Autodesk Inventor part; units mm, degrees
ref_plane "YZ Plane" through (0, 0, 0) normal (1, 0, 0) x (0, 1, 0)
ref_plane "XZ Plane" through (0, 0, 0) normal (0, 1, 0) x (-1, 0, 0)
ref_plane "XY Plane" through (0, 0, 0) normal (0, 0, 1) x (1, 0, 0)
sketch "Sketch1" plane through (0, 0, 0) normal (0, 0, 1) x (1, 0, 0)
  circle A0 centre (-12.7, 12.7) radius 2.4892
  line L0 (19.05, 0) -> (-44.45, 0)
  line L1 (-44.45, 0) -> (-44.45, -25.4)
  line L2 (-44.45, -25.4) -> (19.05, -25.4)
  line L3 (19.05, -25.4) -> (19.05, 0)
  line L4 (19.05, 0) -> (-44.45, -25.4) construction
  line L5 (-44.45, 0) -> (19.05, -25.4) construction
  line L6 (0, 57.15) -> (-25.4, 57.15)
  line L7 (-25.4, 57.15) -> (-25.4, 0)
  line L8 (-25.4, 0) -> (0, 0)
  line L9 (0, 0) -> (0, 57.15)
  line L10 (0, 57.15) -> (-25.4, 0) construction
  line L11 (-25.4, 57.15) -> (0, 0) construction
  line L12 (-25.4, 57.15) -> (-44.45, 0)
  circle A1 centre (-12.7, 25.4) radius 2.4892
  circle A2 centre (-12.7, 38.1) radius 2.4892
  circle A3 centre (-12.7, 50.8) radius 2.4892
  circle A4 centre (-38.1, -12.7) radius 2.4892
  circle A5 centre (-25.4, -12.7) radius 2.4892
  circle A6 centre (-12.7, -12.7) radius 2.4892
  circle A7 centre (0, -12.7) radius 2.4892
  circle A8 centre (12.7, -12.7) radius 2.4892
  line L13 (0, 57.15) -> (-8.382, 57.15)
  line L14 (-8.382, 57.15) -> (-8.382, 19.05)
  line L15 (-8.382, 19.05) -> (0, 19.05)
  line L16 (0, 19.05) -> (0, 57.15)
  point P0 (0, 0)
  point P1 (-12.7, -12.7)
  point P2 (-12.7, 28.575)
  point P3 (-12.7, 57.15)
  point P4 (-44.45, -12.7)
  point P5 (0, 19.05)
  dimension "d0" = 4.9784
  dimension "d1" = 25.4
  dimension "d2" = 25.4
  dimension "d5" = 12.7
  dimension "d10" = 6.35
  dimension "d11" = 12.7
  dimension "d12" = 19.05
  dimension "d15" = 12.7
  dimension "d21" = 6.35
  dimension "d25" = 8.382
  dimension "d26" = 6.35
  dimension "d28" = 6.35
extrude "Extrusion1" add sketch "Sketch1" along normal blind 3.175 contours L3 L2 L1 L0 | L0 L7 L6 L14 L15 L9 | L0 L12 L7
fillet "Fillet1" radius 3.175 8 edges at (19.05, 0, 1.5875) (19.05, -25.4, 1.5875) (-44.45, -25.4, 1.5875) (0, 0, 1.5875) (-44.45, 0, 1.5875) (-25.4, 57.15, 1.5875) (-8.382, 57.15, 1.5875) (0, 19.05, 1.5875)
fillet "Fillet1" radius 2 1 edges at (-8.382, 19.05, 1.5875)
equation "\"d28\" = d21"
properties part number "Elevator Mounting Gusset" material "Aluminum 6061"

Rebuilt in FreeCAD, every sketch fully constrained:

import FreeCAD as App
import Part
import Sketcher
from FreeCAD import Vector
Q = App.Units.Quantity


def edges_at(feature, points):
    """Names of the edges that pass closest to the given points."""
    edges = feature.Shape.Edges
    near = lambda p: min(range(len(edges)), key=lambda i: edges[i].distToShape(Part.Vertex(*p))[0])
    return sorted({f"Edge{near(p) + 1}" for p in points})


def add_polygon(sketch, points):
    """Adds a closed chain of lines whose ends are joined by coincident constraints."""
    first, n = sketch.GeometryCount, len(points)
    for a, b in zip(points, points[1:] + points[:1]):
        sketch.addGeometry(Part.LineSegment(App.Vector(*a, 0), App.Vector(*b, 0)), False)
    for i in range(n):
        sketch.addConstraint(Sketcher.Constraint("Coincident", first + i, 2, first + (i + 1) % n, 1))

doc = App.newDocument("Part")
body = doc.addObject("PartDesign::Body", "Body")

# Sketch on XY plane
sketch1 = body.newObject("Sketcher::SketchObject", "Sketch")
sketch1.AttachmentSupport = (doc.getObject("XY_Plane"), [""])
sketch1.MapMode = "FlatFace"
add_polygon(sketch1, [(19.1, -25.4), (19.1, 0), (0, 0), (0, 19.1), (-8.4, 19.1), (-8.4, 57.1), (-25.4, 57.1), (-44.5, 0), (-44.5, -25.4)])  # lines 0-8
sketch1.addGeometry(Part.Circle(Vector(-38.1, -12.7, 0), Vector(0, 0, 1), 2.5), False)  # 9
sketch1.addGeometry(Part.Circle(Vector(-25.4, -12.7, 0), Vector(0, 0, 1), 2.5), False)  # 10
sketch1.addGeometry(Part.Circle(Vector(-12.7, -12.7, 0), Vector(0, 0, 1), 2.5), False)  # 11
sketch1.addGeometry(Part.Circle(Vector(0, -12.7, 0), Vector(0, 0, 1), 2.5), False)  # 12
sketch1.addGeometry(Part.Circle(Vector(12.7, -12.7, 0), Vector(0, 0, 1), 2.5), False)  # 13
sketch1.addGeometry(Part.Circle(Vector(-12.7, 50.8, 0), Vector(0, 0, 1), 2.5), False)  # 14
sketch1.addGeometry(Part.Circle(Vector(-12.7, 38.1, 0), Vector(0, 0, 1), 2.5), False)  # 15
sketch1.addGeometry(Part.Circle(Vector(-12.7, 12.7, 0), Vector(0, 0, 1), 2.5), False)  # 16
sketch1.addGeometry(Part.Circle(Vector(-12.7, 25.4, 0), Vector(0, 0, 1), 2.5), False)  # 17
sketch1.addConstraint(Sketcher.Constraint("Vertical", 0))
sketch1.addConstraint(Sketcher.Constraint("Horizontal", 1))
sketch1.addConstraint(Sketcher.Constraint("Vertical", 2))
sketch1.addConstraint(Sketcher.Constraint("Horizontal", 3))
sketch1.addConstraint(Sketcher.Constraint("Vertical", 4))
sketch1.addConstraint(Sketcher.Constraint("Horizontal", 5))
sketch1.addConstraint(Sketcher.Constraint("Vertical", 7))
sketch1.addConstraint(Sketcher.Constraint("Horizontal", 8))
sketch1.addConstraint(Sketcher.Constraint("Coincident", 1, 2, -1, 1))
sketch1.addConstraint(Sketcher.Constraint("Equal", 9, 10))
sketch1.addConstraint(Sketcher.Constraint("Equal", 10, 11))
sketch1.addConstraint(Sketcher.Constraint("Equal", 11, 12))
sketch1.addConstraint(Sketcher.Constraint("Equal", 12, 13))
sketch1.addConstraint(Sketcher.Constraint("Equal", 13, 14))
sketch1.addConstraint(Sketcher.Constraint("Equal", 14, 15))
sketch1.addConstraint(Sketcher.Constraint("Equal", 15, 16))
sketch1.addConstraint(Sketcher.Constraint("Equal", 16, 17))
sketch1.addConstraint(Sketcher.Constraint("Symmetric", 13, 3, 16, 3, -1, 1))
sketch1.addConstraint(Sketcher.Constraint("Symmetric", 11, 3, 13, 3, -2))
sketch1.addConstraint(Sketcher.Constraint("PointOnObject", 12, 3, -2))
sketch1.addConstraint(Sketcher.Constraint("PointOnObject", 6, 2, -1))
sketch1.addConstraint(Sketcher.Constraint("Horizontal", 9, 3, 10, 3))
sketch1.addConstraint(Sketcher.Constraint("Horizontal", 10, 3, 11, 3))
sketch1.addConstraint(Sketcher.Constraint("Horizontal", 11, 3, 12, 3))
sketch1.addConstraint(Sketcher.Constraint("Vertical", 11, 3, 14, 3))
sketch1.addConstraint(Sketcher.Constraint("Vertical", 14, 3, 15, 3))
sketch1.addConstraint(Sketcher.Constraint("Vertical", 16, 3, 17, 3))
sketch1.addConstraint(Sketcher.Constraint("Vertical", 10, 3, 5, 2))
sketch1.addConstraint(Sketcher.Constraint("Equal", 1, 2))
sketch1.addConstraint(Sketcher.Constraint("DistanceY", 0, 1, 0, 2, Q("1 in")))
sketch1.addConstraint(Sketcher.Constraint("Diameter", 9, Q("0.196 in")))
sketch1.addConstraint(Sketcher.Constraint("DistanceX", 10, 3, -1, 1, Q("1 in")))
sketch1.addConstraint(Sketcher.Constraint("DistanceY", -1, 1, 17, 3, Q("1 in")))
sketch1.addConstraint(Sketcher.Constraint("DistanceX", 9, 3, 11, 3, Q("1 in")))
sketch1.addConstraint(Sketcher.Constraint("DistanceX", 11, 3, 13, 3, Q("1 in")))
sketch1.addConstraint(Sketcher.Constraint("DistanceY", 11, 3, 16, 3, Q("1 in")))
sketch1.addConstraint(Sketcher.Constraint("DistanceY", 16, 3, 15, 3, Q("1 in")))
sketch1.addConstraint(Sketcher.Constraint("DistanceY", 17, 3, 14, 3, Q("1 in")))
sketch1.addConstraint(Sketcher.Constraint("DistanceX", 1, 2, 1, 1, Q("0.75 in")))
sketch1.addConstraint(Sketcher.Constraint("DistanceX", 3, 2, 3, 1, Q("0.33 in")))
sketch1.addConstraint(Sketcher.Constraint("DistanceY", 14, 3, 4, 2, Q("0.25 in")))
sketch1.addConstraint(Sketcher.Constraint("DistanceX", 6, 2, 9, 3, Q("0.25 in")))
pad1 = body.newObject("PartDesign::Pad", "Pad")
pad1.Profile = sketch1
pad1.Length = Q("0.125 in")
doc.recompute()

fillet = body.newObject("PartDesign::Fillet", "Fillet")
fillet.Base = (pad1, edges_at(pad1, [
    (19.05, 0, 1.587),
    (19.05, -25.4, 1.587),
    (-44.45, -25.4, 1.587),
    (0, 0, 1.587),
    (-44.45, 0, 1.587),
    (-25.4, 57.15, 1.587),
    (-8.382, 57.15, 1.587),
    (0, 19.05, 1.587),
]))
fillet.Radius = Q("0.125 in")
doc.recompute()

fillet2 = body.newObject("PartDesign::Fillet", "Fillet001")
fillet2.Base = (fillet, edges_at(fillet, [(-8.382, 19.05, 1.587)]))
fillet2.Radius = 2

doc.recompute()
